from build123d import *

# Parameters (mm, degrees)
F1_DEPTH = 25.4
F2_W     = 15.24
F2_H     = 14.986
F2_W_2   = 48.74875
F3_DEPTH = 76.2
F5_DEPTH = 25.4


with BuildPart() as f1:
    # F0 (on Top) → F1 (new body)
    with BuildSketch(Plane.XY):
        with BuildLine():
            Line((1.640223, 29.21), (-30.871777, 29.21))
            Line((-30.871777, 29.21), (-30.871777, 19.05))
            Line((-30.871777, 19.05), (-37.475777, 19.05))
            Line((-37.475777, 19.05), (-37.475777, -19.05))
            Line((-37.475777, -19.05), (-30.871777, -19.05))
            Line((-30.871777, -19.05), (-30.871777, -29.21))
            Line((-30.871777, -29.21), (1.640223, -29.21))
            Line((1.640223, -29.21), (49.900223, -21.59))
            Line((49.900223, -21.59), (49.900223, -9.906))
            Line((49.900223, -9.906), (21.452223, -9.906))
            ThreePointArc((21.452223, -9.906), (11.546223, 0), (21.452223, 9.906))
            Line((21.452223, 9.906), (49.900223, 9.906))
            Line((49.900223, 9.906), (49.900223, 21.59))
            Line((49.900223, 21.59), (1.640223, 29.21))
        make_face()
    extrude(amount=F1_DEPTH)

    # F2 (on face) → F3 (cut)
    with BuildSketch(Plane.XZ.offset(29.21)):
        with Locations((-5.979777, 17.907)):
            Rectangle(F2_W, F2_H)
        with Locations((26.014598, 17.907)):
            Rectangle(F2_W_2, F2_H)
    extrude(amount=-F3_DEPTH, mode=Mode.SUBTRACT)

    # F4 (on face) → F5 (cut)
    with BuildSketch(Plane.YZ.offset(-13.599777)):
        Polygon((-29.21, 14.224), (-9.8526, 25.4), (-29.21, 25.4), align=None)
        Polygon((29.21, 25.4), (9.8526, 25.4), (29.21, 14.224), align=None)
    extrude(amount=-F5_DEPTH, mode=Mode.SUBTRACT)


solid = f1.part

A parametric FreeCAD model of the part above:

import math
import FreeCAD as App
import Part
import Sketcher
from FreeCAD import Vector
Q = App.Units.Quantity

doc = App.newDocument("Part")
params = doc.addObject("Spreadsheet::Sheet", "Params")
for row, (alias, value) in enumerate([
    ("sketch1_radius", "0.39 in"),
    ("sketch1_height", "0.4 in"),
    ("sketch1_height2", "1.5 in"),
    ("sketch1_width", "1.28 in"),
    ("sketch1_width2", "0.26 in"),
    ("pad1_length", "1 in"),
    ("sketch2_height", "0.59 in"),
    ("pocket1_length", "3 in"),
    ("sketch3_height", "0.44 in"),
    ("pocket2_length", "1 in"),
], start=1):
    params.set(f"A{row}", alias)
    params.set(f"B{row}", "=" + value)
    params.setAlias(f"B{row}", alias)

body = doc.addObject("PartDesign::Body", "Body")

sketch1 = body.newObject("Sketcher::SketchObject", "Sketch")
sketch1.AttachmentSupport = (doc.getObject("XY_Plane"), [""])
sketch1.MapMode = "FlatFace"
sketch1.addGeometry(Part.LineSegment(Vector(2, 29, 0), Vector(-31, 29, 0)), False)
sketch1.addGeometry(Part.LineSegment(Vector(-31, 29, 0), Vector(-31, 19, 0)), False)
sketch1.addGeometry(Part.LineSegment(Vector(-31, 19, 0), Vector(-37, 19, 0)), False)
sketch1.addGeometry(Part.LineSegment(Vector(-37, 19, 0), Vector(-37, -19, 0)), False)
sketch1.addGeometry(Part.LineSegment(Vector(-37, -19, 0), Vector(-31, -19, 0)), False)
sketch1.addGeometry(Part.LineSegment(Vector(-31, -19, 0), Vector(-31, -29, 0)), False)
sketch1.addGeometry(Part.LineSegment(Vector(-31, -29, 0), Vector(2, -29, 0)), False)
sketch1.addGeometry(Part.LineSegment(Vector(2, -29, 0), Vector(50, -22, 0)), False)
sketch1.addGeometry(Part.LineSegment(Vector(50, -22, 0), Vector(50, -10, 0)), False)
sketch1.addGeometry(Part.LineSegment(Vector(50, -10, 0), Vector(21, -10, 0)), False)
sketch1.addGeometry(Part.ArcOfCircle(Part.Circle(Vector(21, 0, 0), Vector(0, 0, 1), 10), math.radians(90), math.radians(270)), False)
sketch1.addGeometry(Part.LineSegment(Vector(21, 10, 0), Vector(50, 10, 0)), False)
sketch1.addGeometry(Part.LineSegment(Vector(50, 10, 0), Vector(50, 22, 0)), False)
sketch1.addGeometry(Part.LineSegment(Vector(50, 22, 0), Vector(2, 29, 0)), False)
sketch1.addConstraint(Sketcher.Constraint("Coincident", 0, 2, 1, 1))
sketch1.addConstraint(Sketcher.Constraint("Coincident", 1, 2, 2, 1))
sketch1.addConstraint(Sketcher.Constraint("Coincident", 2, 2, 3, 1))
sketch1.addConstraint(Sketcher.Constraint("Coincident", 3, 2, 4, 1))
sketch1.addConstraint(Sketcher.Constraint("Coincident", 4, 2, 5, 1))
sketch1.addConstraint(Sketcher.Constraint("Coincident", 5, 2, 6, 1))
sketch1.addConstraint(Sketcher.Constraint("Coincident", 6, 2, 7, 1))
sketch1.addConstraint(Sketcher.Constraint("Coincident", 7, 2, 8, 1))
sketch1.addConstraint(Sketcher.Constraint("Coincident", 8, 2, 9, 1))
sketch1.addConstraint(Sketcher.Constraint("Tangent", 9, 2, 10, 2))
sketch1.addConstraint(Sketcher.Constraint("Tangent", 10, 1, 11, 1))
sketch1.addConstraint(Sketcher.Constraint("Coincident", 11, 2, 12, 1))
sketch1.addConstraint(Sketcher.Constraint("Coincident", 12, 2, 13, 1))
sketch1.addConstraint(Sketcher.Constraint("Coincident", 13, 2, 0, 1))
sketch1.addConstraint(Sketcher.Constraint("Horizontal", 0))
sketch1.addConstraint(Sketcher.Constraint("Vertical", 1))
sketch1.addConstraint(Sketcher.Constraint("Horizontal", 2))
sketch1.addConstraint(Sketcher.Constraint("Vertical", 3))
sketch1.addConstraint(Sketcher.Constraint("Horizontal", 4))
sketch1.addConstraint(Sketcher.Constraint("Vertical", 5))
sketch1.addConstraint(Sketcher.Constraint("Horizontal", 6))
sketch1.addConstraint(Sketcher.Constraint("Vertical", 8))
sketch1.addConstraint(Sketcher.Constraint("Horizontal", 9))
sketch1.addConstraint(Sketcher.Constraint("Horizontal", 11))
sketch1.addConstraint(Sketcher.Constraint("Vertical", 12))
sketch1.addConstraint(Sketcher.Constraint("Symmetric", 1, 2, 4, 2, -1))
sketch1.addConstraint(Sketcher.Constraint("Symmetric", 8, 2, 11, 2, -1))
sketch1.addConstraint(Sketcher.Constraint("Symmetric", 6, 2, 13, 2, -1))
sketch1.addConstraint(Sketcher.Constraint("Equal", 8, 12))
sketch1.addConstraint(Sketcher.Constraint("Radius", 10, Q("0.39 in")))
sketch1.addConstraint(Sketcher.Constraint("DistanceY", 1, 2, 1, 1, Q("0.4 in")))
sketch1.addConstraint(Sketcher.Constraint("DistanceY", 3, 2, 3, 1, Q("1.5 in")))
sketch1.addConstraint(Sketcher.Constraint("DistanceX", 0, 2, 0, 1, Q("1.28 in")))
sketch1.addConstraint(Sketcher.Constraint("DistanceX", 2, 2, 2, 1, Q("0.26 in")))
sketch1.addConstraint(Sketcher.Constraint("DistanceX", 9, 2, 9, 1, Q("1.12 in")))
sketch1.addConstraint(Sketcher.Constraint("DistanceY", 8, 1, 8, 2, Q("0.46 in")))
sketch1.addConstraint(Sketcher.Constraint("DistanceX", 6, 2, 7, 2, Q("1.9 in")))
sketch1.addConstraint(Sketcher.Constraint("DistanceX", -1, 1, 10, 3, 21.452223))
sketch1.setExpression("Constraints[29]", "Params.sketch1_radius")
sketch1.setExpression("Constraints[30]", "Params.sketch1_height")
sketch1.setExpression("Constraints[31]", "Params.sketch1_height2")
sketch1.setExpression("Constraints[32]", "Params.sketch1_width")
sketch1.setExpression("Constraints[33]", "Params.sketch1_width2")
pad1 = body.newObject("PartDesign::Pad", "Pad")
pad1.Profile = sketch1
pad1.setExpression("Length", "Params.pad1_length")

sketch2 = body.newObject("Sketcher::SketchObject", "Sketch001")
sketch2.AttachmentSupport = (doc.getObject("XZ_Plane"), [""])
sketch2.MapMode = "FlatFace"
sketch2.AttachmentOffset = App.Placement(Vector(0, 0, 1.15 * 25.4), App.Rotation())
sketch2.addGeometry(Part.LineSegment(Vector(-14, 25, 0), Vector(-14, 10, 0)), False)
sketch2.addGeometry(Part.LineSegment(Vector(-14, 10, 0), Vector(50, 10, 0)), False)
sketch2.addGeometry(Part.LineSegment(Vector(50, 10, 0), Vector(50, 25, 0)), False)
sketch2.addGeometry(Part.LineSegment(Vector(50, 25, 0), Vector(-14, 25, 0)), False)
sketch2.addConstraint(Sketcher.Constraint("Coincident", 0, 2, 1, 1))
sketch2.addConstraint(Sketcher.Constraint("Coincident", 1, 2, 2, 1))
sketch2.addConstraint(Sketcher.Constraint("Coincident", 2, 2, 3, 1))
sketch2.addConstraint(Sketcher.Constraint("Coincident", 3, 2, 0, 1))
sketch2.addConstraint(Sketcher.Constraint("Vertical", 0))
sketch2.addConstraint(Sketcher.Constraint("Horizontal", 1))
sketch2.addConstraint(Sketcher.Constraint("Vertical", 2))
sketch2.addConstraint(Sketcher.Constraint("Horizontal", 3))
sketch2.addConstraint(Sketcher.Constraint("DistanceY", -1, 1, 2, 2, Q("1 in")))
sketch2.addConstraint(Sketcher.Constraint("DistanceY", 0, 2, 0, 1, Q("0.59 in")))
sketch2.addConstraint(Sketcher.Constraint("DistanceX", 1, 1, 1, 2, 63.98875))
sketch2.addConstraint(Sketcher.Constraint("DistanceX", 0, 2, -1, 1, 13.599777))
sketch2.setExpression("Constraints[9]", "Params.sketch2_height")
pocket1 = body.newObject("PartDesign::Pocket", "Pocket")
pocket1.Profile = sketch2
pocket1.setExpression("Length", "Params.pocket1_length")

sketch3 = body.newObject("Sketcher::SketchObject", "Sketch002")
sketch3.AttachmentSupport = (doc.getObject("YZ_Plane"), [""])
sketch3.MapMode = "FlatFace"
sketch3.AttachmentOffset = App.Placement(Vector(0, 0, -13.599777), App.Rotation())
sketch3.addGeometry(Part.LineSegment(Vector(-29, 14, 0), Vector(-10, 25, 0)), False)
sketch3.addGeometry(Part.LineSegment(Vector(-10, 25, 0), Vector(-29, 25, 0)), False)
sketch3.addGeometry(Part.LineSegment(Vector(-29, 25, 0), Vector(-29, 14, 0)), False)
sketch3.addGeometry(Part.LineSegment(Vector(29, 25, 0), Vector(10, 25, 0)), False)
sketch3.addGeometry(Part.LineSegment(Vector(10, 25, 0), Vector(29, 14, 0)), False)
sketch3.addGeometry(Part.LineSegment(Vector(29, 14, 0), Vector(29, 25, 0)), False)
sketch3.addConstraint(Sketcher.Constraint("Coincident", 0, 2, 1, 1))
sketch3.addConstraint(Sketcher.Constraint("Coincident", 1, 2, 2, 1))
sketch3.addConstraint(Sketcher.Constraint("Coincident", 2, 2, 0, 1))
sketch3.addConstraint(Sketcher.Constraint("Coincident", 3, 2, 4, 1))
sketch3.addConstraint(Sketcher.Constraint("Coincident", 4, 2, 5, 1))
sketch3.addConstraint(Sketcher.Constraint("Coincident", 5, 2, 3, 1))
sketch3.addConstraint(Sketcher.Constraint("Horizontal", 1))
sketch3.addConstraint(Sketcher.Constraint("Vertical", 2))
sketch3.addConstraint(Sketcher.Constraint("Horizontal", 3))
sketch3.addConstraint(Sketcher.Constraint("Vertical", 5))
sketch3.addConstraint(Sketcher.Constraint("Symmetric", 0, 2, 3, 2, -2))
sketch3.addConstraint(Sketcher.Constraint("Symmetric", 2, 2, 4, 2, -2))
sketch3.addConstraint(Sketcher.Constraint("DistanceY", -1, 1, 0, 2, Q("1 in")))
sketch3.addConstraint(Sketcher.Constraint("Angle", 0, Q("30 deg")))
sketch3.addConstraint(Sketcher.Constraint("DistanceY", 2, 2, 2, 1, Q("0.44 in")))
sketch3.addConstraint(Sketcher.Constraint("DistanceX", 2, 2, 4, 2, Q("2.3 in")))
sketch3.setExpression("Constraints[14]", "Params.sketch3_height")
pocket2 = body.newObject("PartDesign::Pocket", "Pocket001")
pocket2.Profile = sketch3
pocket2.setExpression("Length", "Params.pocket2_length")

doc.recompute()
